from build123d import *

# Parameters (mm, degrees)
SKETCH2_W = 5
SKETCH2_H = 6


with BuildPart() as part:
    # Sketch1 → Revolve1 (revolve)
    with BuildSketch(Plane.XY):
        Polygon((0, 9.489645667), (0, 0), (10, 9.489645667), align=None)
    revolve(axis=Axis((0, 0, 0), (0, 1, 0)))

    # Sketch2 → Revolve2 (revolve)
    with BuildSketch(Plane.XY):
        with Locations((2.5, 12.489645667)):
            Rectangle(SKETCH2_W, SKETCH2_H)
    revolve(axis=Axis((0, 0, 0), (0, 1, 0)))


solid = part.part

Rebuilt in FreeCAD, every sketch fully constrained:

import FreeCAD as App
import Part
import Sketcher

V = App.Vector
Q = App.Units.Quantity

doc = App.newDocument("Part")
body = doc.addObject("PartDesign::Body", "Body")

# Sketch on XY plane
sketch1 = body.newObject("Sketcher::SketchObject", "Sketch")
sketch1.AttachmentSupport = (doc.getObject("XY_Plane"), [""])
sketch1.MapMode = "FlatFace"
sketch1.addGeometry([
    Part.LineSegment(V(0, 9.489646, 0), V(0, 0, 0)),
    Part.LineSegment(V(0, 0, 0), V(10, 9.489646, 0)),
    Part.LineSegment(V(10, 9.489646, 0), V(0, 9.489646, 0)),
], False)
sketch1.addConstraint([
    Sketcher.Constraint("Coincident", 0, 2, 1, 1),
    Sketcher.Constraint("Coincident", 1, 2, 2, 1),
    Sketcher.Constraint("Coincident", 2, 2, 0, 1),
    Sketcher.Constraint("Vertical", 0),
    Sketcher.Constraint("Horizontal", 2),
    Sketcher.Constraint("Coincident", 0, 2, -1, 1),
    Sketcher.Constraint("DistanceX", 2, 2, 2, 1, 10.0),
    Sketcher.Constraint("Angle", 1, Q("43.5 deg")),
])
revolution = body.newObject("PartDesign::Revolution", "Revolution")
revolution.Profile = sketch1
revolution.ReferenceAxis = (sketch1, ["V_Axis"])
revolution.Angle = 360

# Sketch on XY plane
sketch2 = body.newObject("Sketcher::SketchObject", "Sketch001")
sketch2.AttachmentSupport = (doc.getObject("XY_Plane"), [""])
sketch2.MapMode = "FlatFace"
sketch2.addGeometry([
    Part.LineSegment(V(0, 15.489646, 0), V(0, 9.489646, 0)),
    Part.LineSegment(V(0, 9.489646, 0), V(5, 9.489646, 0)),
    Part.LineSegment(V(5, 9.489646, 0), V(5, 15.489646, 0)),
    Part.LineSegment(V(5, 15.489646, 0), V(0, 15.489646, 0)),
], False)
sketch2.addConstraint([
    Sketcher.Constraint("Coincident", 0, 2, 1, 1),
    Sketcher.Constraint("Coincident", 1, 2, 2, 1),
    Sketcher.Constraint("Coincident", 2, 2, 3, 1),
    Sketcher.Constraint("Coincident", 3, 2, 0, 1),
    Sketcher.Constraint("Vertical", 0),
    Sketcher.Constraint("Horizontal", 1),
    Sketcher.Constraint("Vertical", 2),
    Sketcher.Constraint("Horizontal", 3),
    Sketcher.Constraint("PointOnObject", 0, 2, -2),
    Sketcher.Constraint("DistanceX", 1, 1, 1, 2, 5.0),
    Sketcher.Constraint("DistanceY", 0, 2, 0, 1, 6.0),
    Sketcher.Constraint("DistanceY", -1, 1, 0, 2, 9.489646),
])
revolution2 = body.newObject("PartDesign::Revolution", "Revolution001")
revolution2.Profile = sketch2
revolution2.ReferenceAxis = (sketch2, ["V_Axis"])
revolution2.Angle = 360

doc.recompute()
